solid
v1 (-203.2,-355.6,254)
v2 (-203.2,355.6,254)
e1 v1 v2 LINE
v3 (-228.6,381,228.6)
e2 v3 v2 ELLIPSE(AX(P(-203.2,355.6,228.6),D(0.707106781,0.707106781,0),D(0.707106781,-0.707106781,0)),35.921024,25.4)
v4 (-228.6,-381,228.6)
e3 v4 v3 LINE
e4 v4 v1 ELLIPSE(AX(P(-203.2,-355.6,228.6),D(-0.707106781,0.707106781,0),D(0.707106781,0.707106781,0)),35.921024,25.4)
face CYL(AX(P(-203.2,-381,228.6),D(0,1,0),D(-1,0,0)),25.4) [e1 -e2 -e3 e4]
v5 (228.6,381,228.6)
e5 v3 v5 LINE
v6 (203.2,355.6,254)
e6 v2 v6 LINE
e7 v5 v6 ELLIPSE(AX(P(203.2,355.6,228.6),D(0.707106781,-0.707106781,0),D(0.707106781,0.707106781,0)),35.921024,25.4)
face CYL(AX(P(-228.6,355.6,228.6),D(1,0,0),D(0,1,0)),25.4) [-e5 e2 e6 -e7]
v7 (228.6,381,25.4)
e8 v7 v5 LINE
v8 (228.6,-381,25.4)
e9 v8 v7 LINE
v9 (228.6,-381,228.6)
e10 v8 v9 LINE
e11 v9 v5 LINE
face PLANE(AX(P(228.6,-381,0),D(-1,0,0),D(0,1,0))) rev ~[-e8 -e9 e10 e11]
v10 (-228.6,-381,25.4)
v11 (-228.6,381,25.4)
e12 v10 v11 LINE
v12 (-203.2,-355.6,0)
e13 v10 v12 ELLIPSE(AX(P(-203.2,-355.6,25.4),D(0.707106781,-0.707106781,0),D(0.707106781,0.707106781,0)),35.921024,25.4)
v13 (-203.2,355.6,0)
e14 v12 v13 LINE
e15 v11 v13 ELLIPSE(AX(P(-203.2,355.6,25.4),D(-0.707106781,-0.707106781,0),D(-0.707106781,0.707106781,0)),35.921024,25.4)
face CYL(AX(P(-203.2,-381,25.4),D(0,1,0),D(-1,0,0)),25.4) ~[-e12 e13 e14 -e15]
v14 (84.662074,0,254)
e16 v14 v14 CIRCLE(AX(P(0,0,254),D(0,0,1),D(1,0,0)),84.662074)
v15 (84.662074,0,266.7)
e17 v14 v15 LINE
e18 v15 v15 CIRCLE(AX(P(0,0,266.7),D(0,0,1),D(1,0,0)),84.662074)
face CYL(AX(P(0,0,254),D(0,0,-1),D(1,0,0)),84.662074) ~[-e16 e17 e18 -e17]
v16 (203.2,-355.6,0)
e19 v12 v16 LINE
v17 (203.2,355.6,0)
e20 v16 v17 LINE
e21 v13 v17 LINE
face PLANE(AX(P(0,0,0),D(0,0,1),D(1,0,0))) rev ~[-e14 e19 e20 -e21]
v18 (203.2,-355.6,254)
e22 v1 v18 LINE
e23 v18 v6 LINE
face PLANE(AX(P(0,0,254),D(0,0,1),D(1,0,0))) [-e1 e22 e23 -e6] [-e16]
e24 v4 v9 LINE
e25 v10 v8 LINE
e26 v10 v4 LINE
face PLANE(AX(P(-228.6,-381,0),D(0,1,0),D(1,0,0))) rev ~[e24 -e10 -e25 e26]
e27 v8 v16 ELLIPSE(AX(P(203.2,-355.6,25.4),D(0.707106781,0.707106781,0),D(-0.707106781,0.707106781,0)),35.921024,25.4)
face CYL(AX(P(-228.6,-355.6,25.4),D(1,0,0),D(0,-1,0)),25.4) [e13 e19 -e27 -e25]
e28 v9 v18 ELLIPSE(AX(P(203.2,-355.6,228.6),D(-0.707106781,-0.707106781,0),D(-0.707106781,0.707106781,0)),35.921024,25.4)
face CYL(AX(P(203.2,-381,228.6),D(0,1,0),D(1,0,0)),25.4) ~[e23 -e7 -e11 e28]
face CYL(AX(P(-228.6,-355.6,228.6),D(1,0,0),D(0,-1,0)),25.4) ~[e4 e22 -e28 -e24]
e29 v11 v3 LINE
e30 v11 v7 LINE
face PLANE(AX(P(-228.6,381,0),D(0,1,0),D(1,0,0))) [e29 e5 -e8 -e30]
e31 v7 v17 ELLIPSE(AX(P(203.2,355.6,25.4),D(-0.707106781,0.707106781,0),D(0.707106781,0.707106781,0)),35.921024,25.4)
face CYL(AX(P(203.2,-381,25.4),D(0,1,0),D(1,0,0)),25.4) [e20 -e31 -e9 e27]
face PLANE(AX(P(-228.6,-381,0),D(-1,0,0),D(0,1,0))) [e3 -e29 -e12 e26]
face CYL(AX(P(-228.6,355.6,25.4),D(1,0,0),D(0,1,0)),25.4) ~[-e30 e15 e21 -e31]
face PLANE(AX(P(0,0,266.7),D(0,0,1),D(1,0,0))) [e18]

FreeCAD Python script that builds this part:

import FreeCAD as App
import Part
import Sketcher
from FreeCAD import Vector
Q = App.Units.Quantity


def edges_at(feature, points):
    """Names of the edges that pass closest to the given points."""
    edges = feature.Shape.Edges
    near = lambda p: min(range(len(edges)), key=lambda i: edges[i].distToShape(Part.Vertex(*p))[0])
    return sorted({f"Edge{near(p) + 1}" for p in points})


def add_polygon(sketch, points):
    """Adds a closed chain of lines whose ends are joined by coincident constraints."""
    first, n = sketch.GeometryCount, len(points)
    for a, b in zip(points, points[1:] + points[:1]):
        sketch.addGeometry(Part.LineSegment(App.Vector(*a, 0), App.Vector(*b, 0)), False)
    for i in range(n):
        sketch.addConstraint(Sketcher.Constraint("Coincident", first + i, 2, first + (i + 1) % n, 1))

doc = App.newDocument("Part")
body = doc.addObject("PartDesign::Body", "Body")

# Sketch on XY plane
sketch1 = body.newObject("Sketcher::SketchObject", "Sketch")
sketch1.AttachmentSupport = (doc.getObject("XY_Plane"), [""])
sketch1.MapMode = "FlatFace"
add_polygon(sketch1, [(-228.6, 381), (-228.6, -381), (228.6, -381), (228.6, 381)])  # lines 0-3
sketch1.addConstraint([
    Sketcher.Constraint("Vertical", 0),
    Sketcher.Constraint("Horizontal", 1),
    Sketcher.Constraint("Vertical", 2),
    Sketcher.Constraint("Horizontal", 3),
    Sketcher.Constraint("Symmetric", 0, 2, 2, 2, -1, 1),
    Sketcher.Constraint("DistanceX", 1, 1, 1, 2, Q("18 in")),
    Sketcher.Constraint("DistanceY", 0, 2, 0, 1, Q("30 in")),
])
pad1 = body.newObject("PartDesign::Pad", "Pad")
pad1.Profile = sketch1
pad1.Length = Q("10 in")
doc.recompute()

fillet = body.newObject("PartDesign::Fillet", "Fillet")
fillet.Base = (pad1, edges_at(pad1, [
    (0, 381, 254),
    (228.6, 0, 254),
    (0, -381, 254),
    (-228.6, 0, 254),
    (228.6, 0, 0),
    (-228.6, 0, 0),
    (0, -381, 0),
    (0, 381, 0),
]))
fillet.Radius = Q("1 in")

# Sketch on XY plane
sketch2 = body.newObject("Sketcher::SketchObject", "Sketch001")
sketch2.AttachmentSupport = (doc.getObject("XY_Plane"), [""])
sketch2.MapMode = "FlatFace"
sketch2.AttachmentOffset = App.Placement(Vector(0, 0, 10 * 25.4), App.Rotation())
sketch2.addGeometry(Part.Circle(Vector(0, 0, 0), Vector(0, 0, 1), 84.662074), False)
sketch2.addConstraint([
    Sketcher.Constraint("Coincident", 0, 3, -1, 1),
    Sketcher.Constraint("Diameter", 0, 169.324148),
])
pad2 = body.newObject("PartDesign::Pad", "Pad001")
pad2.Profile = sketch2
pad2.Length = Q("0.5 in")

doc.recompute()
